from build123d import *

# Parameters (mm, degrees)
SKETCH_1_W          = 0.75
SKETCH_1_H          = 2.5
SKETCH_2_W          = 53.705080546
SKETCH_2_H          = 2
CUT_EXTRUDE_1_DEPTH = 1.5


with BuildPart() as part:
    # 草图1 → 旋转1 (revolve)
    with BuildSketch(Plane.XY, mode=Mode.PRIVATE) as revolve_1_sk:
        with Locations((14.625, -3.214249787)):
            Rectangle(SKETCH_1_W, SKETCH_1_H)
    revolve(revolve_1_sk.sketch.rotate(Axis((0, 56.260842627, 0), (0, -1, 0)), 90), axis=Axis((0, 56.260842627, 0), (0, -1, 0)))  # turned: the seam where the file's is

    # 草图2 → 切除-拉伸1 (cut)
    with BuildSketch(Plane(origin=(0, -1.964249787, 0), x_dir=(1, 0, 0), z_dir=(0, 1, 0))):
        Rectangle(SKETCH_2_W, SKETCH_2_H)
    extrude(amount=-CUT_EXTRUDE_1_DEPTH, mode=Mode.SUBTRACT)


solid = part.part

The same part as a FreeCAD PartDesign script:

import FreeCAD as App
import Part
import Sketcher

V = App.Vector

doc = App.newDocument("Part")
body = doc.addObject("PartDesign::Body", "Body")

# Sketch on XY plane
sketch1 = body.newObject("Sketcher::SketchObject", "Sketch")
sketch1.AttachmentSupport = (doc.getObject("XY_Plane"), [""])
sketch1.MapMode = "FlatFace"
sketch1.addGeometry(Part.LineSegment(V(14.2, -2, 0), V(14.2, -4.5, 0)), False)
sketch1.addGeometry(Part.LineSegment(V(14.2, -4.5, 0), V(15, -4.5, 0)), False)
sketch1.addGeometry(Part.LineSegment(V(15, -4.5, 0), V(15, -2, 0)), False)
sketch1.addGeometry(Part.LineSegment(V(15, -2, 0), V(14.2, -2, 0)), False)
sketch1.addConstraint(Sketcher.Constraint("Coincident", 0, 2, 1, 1))
sketch1.addConstraint(Sketcher.Constraint("Coincident", 1, 2, 2, 1))
sketch1.addConstraint(Sketcher.Constraint("Coincident", 2, 2, 3, 1))
sketch1.addConstraint(Sketcher.Constraint("Coincident", 3, 2, 0, 1))
sketch1.addConstraint(Sketcher.Constraint("Vertical", 0))
sketch1.addConstraint(Sketcher.Constraint("Horizontal", 1))
sketch1.addConstraint(Sketcher.Constraint("Vertical", 2))
sketch1.addConstraint(Sketcher.Constraint("Horizontal", 3))
sketch1.addConstraint(Sketcher.Constraint("DistanceY", 0, 2, 0, 1, 2.5))
sketch1.addConstraint(Sketcher.Constraint("DistanceX", -1, 1, 1, 2, 15.0))
sketch1.addConstraint(Sketcher.Constraint("DistanceX", 1, 1, 1, 2, 0.75))
sketch1.addConstraint(Sketcher.Constraint("DistanceY", 0, 2, -1, 1, 4.46425))
revolution = body.newObject("PartDesign::Revolution", "Revolution")
revolution.Profile = sketch1
revolution.ReferenceAxis = (sketch1, ["V_Axis"])
revolution.Angle = 360

# Sketch on XZ plane
sketch2 = body.newObject("Sketcher::SketchObject", "Sketch001")
sketch2.AttachmentSupport = (doc.getObject("XZ_Plane"), [""])
sketch2.MapMode = "FlatFace"
sketch2.AttachmentOffset = App.Placement(V(0, 0, 1.96425), App.Rotation())
sketch2.addGeometry(Part.LineSegment(V(-26.9, -1, 0), V(-26.9, 1, 0)), False)
sketch2.addGeometry(Part.LineSegment(V(-26.9, 1, 0), V(26.9, 1, 0)), False)
sketch2.addGeometry(Part.LineSegment(V(26.9, 1, 0), V(26.9, -1, 0)), False)
sketch2.addGeometry(Part.LineSegment(V(26.9, -1, 0), V(-26.9, -1, 0)), False)
sketch2.addConstraint(Sketcher.Constraint("Coincident", 0, 2, 1, 1))
sketch2.addConstraint(Sketcher.Constraint("Coincident", 1, 2, 2, 1))
sketch2.addConstraint(Sketcher.Constraint("Coincident", 2, 2, 3, 1))
sketch2.addConstraint(Sketcher.Constraint("Coincident", 3, 2, 0, 1))
sketch2.addConstraint(Sketcher.Constraint("Vertical", 0))
sketch2.addConstraint(Sketcher.Constraint("Horizontal", 1))
sketch2.addConstraint(Sketcher.Constraint("Vertical", 2))
sketch2.addConstraint(Sketcher.Constraint("Horizontal", 3))
sketch2.addConstraint(Sketcher.Constraint("Symmetric", 0, 2, 2, 2, -1, 1))
sketch2.addConstraint(Sketcher.Constraint("DistanceY", 0, 1, 0, 2, 2.0))
sketch2.addConstraint(Sketcher.Constraint("DistanceX", 1, 1, 1, 2, 53.705081))
pocket1 = body.newObject("PartDesign::Pocket", "Pocket")
pocket1.Profile = sketch2
pocket1.Length = 1.5
pocket1.Reversed = True

doc.recompute()
